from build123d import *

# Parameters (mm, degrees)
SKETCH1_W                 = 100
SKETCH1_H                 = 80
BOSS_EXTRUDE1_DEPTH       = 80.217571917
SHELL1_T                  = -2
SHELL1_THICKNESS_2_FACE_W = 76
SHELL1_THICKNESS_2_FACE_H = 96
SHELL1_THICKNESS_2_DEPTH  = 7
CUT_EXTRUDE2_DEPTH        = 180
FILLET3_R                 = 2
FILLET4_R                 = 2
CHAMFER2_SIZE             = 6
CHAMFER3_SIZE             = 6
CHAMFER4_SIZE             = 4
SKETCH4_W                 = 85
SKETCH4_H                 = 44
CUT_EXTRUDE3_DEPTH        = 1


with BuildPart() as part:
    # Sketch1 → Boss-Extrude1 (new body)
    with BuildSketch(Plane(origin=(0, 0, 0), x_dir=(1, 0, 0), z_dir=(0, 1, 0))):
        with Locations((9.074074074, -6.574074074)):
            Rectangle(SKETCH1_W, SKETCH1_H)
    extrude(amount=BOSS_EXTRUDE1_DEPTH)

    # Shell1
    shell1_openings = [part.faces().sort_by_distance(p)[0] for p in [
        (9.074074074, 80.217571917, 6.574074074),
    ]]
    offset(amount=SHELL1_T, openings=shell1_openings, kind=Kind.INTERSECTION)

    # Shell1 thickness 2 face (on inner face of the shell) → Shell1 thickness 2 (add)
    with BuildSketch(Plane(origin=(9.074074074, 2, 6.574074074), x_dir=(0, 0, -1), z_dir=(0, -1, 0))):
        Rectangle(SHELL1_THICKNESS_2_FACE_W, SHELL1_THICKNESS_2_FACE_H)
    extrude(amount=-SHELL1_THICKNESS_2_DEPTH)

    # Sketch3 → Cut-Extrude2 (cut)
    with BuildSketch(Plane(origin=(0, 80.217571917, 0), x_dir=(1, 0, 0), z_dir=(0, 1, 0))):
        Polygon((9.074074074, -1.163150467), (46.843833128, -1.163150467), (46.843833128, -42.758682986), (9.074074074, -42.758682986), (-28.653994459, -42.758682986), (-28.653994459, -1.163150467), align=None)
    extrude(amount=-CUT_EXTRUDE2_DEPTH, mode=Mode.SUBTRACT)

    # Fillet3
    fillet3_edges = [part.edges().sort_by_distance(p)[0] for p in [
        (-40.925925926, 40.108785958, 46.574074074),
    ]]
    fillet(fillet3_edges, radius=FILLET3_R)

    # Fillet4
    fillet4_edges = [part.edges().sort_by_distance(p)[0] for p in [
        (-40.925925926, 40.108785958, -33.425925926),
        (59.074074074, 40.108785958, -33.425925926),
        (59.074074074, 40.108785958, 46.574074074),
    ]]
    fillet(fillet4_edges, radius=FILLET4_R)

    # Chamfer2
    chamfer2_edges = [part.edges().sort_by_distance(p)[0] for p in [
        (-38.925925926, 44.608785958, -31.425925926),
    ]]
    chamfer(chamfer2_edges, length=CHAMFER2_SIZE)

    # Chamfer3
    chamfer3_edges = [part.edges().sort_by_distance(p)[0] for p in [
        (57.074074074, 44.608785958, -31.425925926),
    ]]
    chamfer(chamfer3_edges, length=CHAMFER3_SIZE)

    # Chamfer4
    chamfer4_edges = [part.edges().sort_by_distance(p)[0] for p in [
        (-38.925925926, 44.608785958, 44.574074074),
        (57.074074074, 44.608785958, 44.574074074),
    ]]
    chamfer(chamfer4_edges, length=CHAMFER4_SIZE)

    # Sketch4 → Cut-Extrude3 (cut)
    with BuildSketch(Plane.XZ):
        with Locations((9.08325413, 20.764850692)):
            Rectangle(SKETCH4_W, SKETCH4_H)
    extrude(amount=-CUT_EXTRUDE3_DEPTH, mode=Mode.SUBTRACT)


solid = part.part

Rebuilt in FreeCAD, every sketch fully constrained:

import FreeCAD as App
import Part
import Sketcher

V = App.Vector
Q = App.Units.Quantity


def edges_at(feature, points):
    """Names of the edges that pass closest to the given points."""
    edges = feature.Shape.Edges
    near = lambda p: min(range(len(edges)), key=lambda i: edges[i].distToShape(Part.Vertex(*p))[0])
    return sorted({f"Edge{near(p) + 1}" for p in points})


def faces_at(feature, points):
    """Names of the faces that lie closest to the given points."""
    faces = feature.Shape.Faces
    near = lambda p: min(range(len(faces)), key=lambda i: faces[i].distToShape(Part.Vertex(*p))[0])
    return sorted({f"Face{near(p) + 1}" for p in points})

doc = App.newDocument("Part")
body = doc.addObject("PartDesign::Body", "Body")

# Sketch on XZ plane
sketch1 = doc.addObject("Sketcher::SketchObject", "Sketch")
body.addObject(sketch1)
sketch1.AttachmentSupport = (doc.XZ_Plane, [""])
sketch1.MapMode = "FlatFace"
sketch1.addGeometry(Part.LineSegment(V(-41, -33, 0), V(-41, 47, 0)), False)
sketch1.addGeometry(Part.LineSegment(V(-41, 47, 0), V(59, 47, 0)), False)
sketch1.addGeometry(Part.LineSegment(V(59, 47, 0), V(59, -33, 0)), False)
sketch1.addGeometry(Part.LineSegment(V(59, -33, 0), V(-41, -33, 0)), False)
sketch1.addConstraint(Sketcher.Constraint("Coincident", 0, 2, 1, 1))
sketch1.addConstraint(Sketcher.Constraint("Coincident", 1, 2, 2, 1))
sketch1.addConstraint(Sketcher.Constraint("Coincident", 2, 2, 3, 1))
sketch1.addConstraint(Sketcher.Constraint("Coincident", 3, 2, 0, 1))
sketch1.addConstraint(Sketcher.Constraint("Vertical", 0))
sketch1.addConstraint(Sketcher.Constraint("Horizontal", 1))
sketch1.addConstraint(Sketcher.Constraint("Vertical", 2))
sketch1.addConstraint(Sketcher.Constraint("Horizontal", 3))
sketch1.addConstraint(Sketcher.Constraint("DistanceX", 1, 1, 1, 2, Q("100 mm")))
sketch1.addConstraint(Sketcher.Constraint("DistanceY", 0, 1, 0, 2, Q("80 mm")))
sketch1.addConstraint(Sketcher.Constraint("DistanceX", 0, 2, -1, 1, Q("40.925926 mm")))
sketch1.addConstraint(Sketcher.Constraint("DistanceY", -1, 1, 0, 2, Q("46.574074 mm")))
pad1 = doc.addObject("PartDesign::Pad", "Pad")
body.addObject(pad1)
pad1.Profile = sketch1
pad1.Length = 80.217572
pad1.Reversed = True
doc.recompute()

thickness = doc.addObject("PartDesign::Thickness", "Thickness")
body.addObject(thickness)
thickness.Base = (pad1, faces_at(pad1, [(9.074, 80.218, 6.574)]))
thickness.Value = 2
thickness.Reversed = True
thickness.Join = "Intersection"

# Sketch on XZ plane
sketch2 = doc.addObject("Sketcher::SketchObject", "Sketch001")
body.addObject(sketch2)
sketch2.AttachmentSupport = (doc.XZ_Plane, [""])
sketch2.MapMode = "FlatFace"
sketch2.AttachmentOffset = App.Placement(V(0, 0, -2), App.Rotation())
sketch2.addGeometry(Part.LineSegment(V(57, 45, 0), V(-39, 45, 0)), False)
sketch2.addGeometry(Part.LineSegment(V(-39, 45, 0), V(-39, -31, 0)), False)
sketch2.addGeometry(Part.LineSegment(V(-39, -31, 0), V(57, -31, 0)), False)
sketch2.addGeometry(Part.LineSegment(V(57, -31, 0), V(57, 45, 0)), False)
sketch2.addConstraint(Sketcher.Constraint("Coincident", 0, 2, 1, 1))
sketch2.addConstraint(Sketcher.Constraint("Coincident", 1, 2, 2, 1))
sketch2.addConstraint(Sketcher.Constraint("Coincident", 2, 2, 3, 1))
sketch2.addConstraint(Sketcher.Constraint("Coincident", 3, 2, 0, 1))
sketch2.addConstraint(Sketcher.Constraint("Horizontal", 0))
sketch2.addConstraint(Sketcher.Constraint("Vertical", 1))
sketch2.addConstraint(Sketcher.Constraint("Horizontal", 2))
sketch2.addConstraint(Sketcher.Constraint("Vertical", 3))
sketch2.addConstraint(Sketcher.Constraint("DistanceX", 0, 2, 0, 1, Q("96 mm")))
sketch2.addConstraint(Sketcher.Constraint("DistanceY", 1, 2, 1, 1, Q("76 mm")))
sketch2.addConstraint(Sketcher.Constraint("DistanceX", 0, 2, -1, 1, Q("38.925926 mm")))
sketch2.addConstraint(Sketcher.Constraint("DistanceY", -1, 1, 0, 2, Q("44.574074 mm")))
pad2 = doc.addObject("PartDesign::Pad", "Pad001")
body.addObject(pad2)
pad2.Profile = sketch2
pad2.Length = 7
pad2.Reversed = True

# Sketch on XZ plane
sketch3 = doc.addObject("Sketcher::SketchObject", "Sketch002")
body.addObject(sketch3)
sketch3.AttachmentSupport = (doc.XZ_Plane, [""])
sketch3.MapMode = "FlatFace"
sketch3.AttachmentOffset = App.Placement(V(0, 0, -80.217572), App.Rotation())
sketch3.addGeometry(Part.LineSegment(V(47, 1, 0), V(-29, 1, 0)), False)
sketch3.addGeometry(Part.LineSegment(V(-29, 1, 0), V(-29, 43, 0)), False)
sketch3.addGeometry(Part.LineSegment(V(-29, 43, 0), V(47, 43, 0)), False)
sketch3.addGeometry(Part.LineSegment(V(47, 43, 0), V(47, 1, 0)), False)
sketch3.addConstraint(Sketcher.Constraint("Coincident", 0, 2, 1, 1))
sketch3.addConstraint(Sketcher.Constraint("Coincident", 1, 2, 2, 1))
sketch3.addConstraint(Sketcher.Constraint("Coincident", 2, 2, 3, 1))
sketch3.addConstraint(Sketcher.Constraint("Coincident", 3, 2, 0, 1))
sketch3.addConstraint(Sketcher.Constraint("Horizontal", 0))
sketch3.addConstraint(Sketcher.Constraint("Vertical", 1))
sketch3.addConstraint(Sketcher.Constraint("Horizontal", 2))
sketch3.addConstraint(Sketcher.Constraint("Vertical", 3))
sketch3.addConstraint(Sketcher.Constraint("DistanceX", 0, 2, 0, 1, Q("75.497828 mm")))
sketch3.addConstraint(Sketcher.Constraint("DistanceY", 1, 1, 1, 2, Q("41.595533 mm")))
sketch3.addConstraint(Sketcher.Constraint("DistanceY", -1, 1, 0, 2, Q("1.16315 mm")))
sketch3.addConstraint(Sketcher.Constraint("DistanceX", 0, 2, -1, 1, Q("28.653994 mm")))
pocket1 = doc.addObject("PartDesign::Pocket", "Pocket")
body.addObject(pocket1)
pocket1.Profile = sketch3
pocket1.Length = 180
pocket1.Reversed = True
doc.recompute()

fillet = doc.addObject("PartDesign::Fillet", "Fillet")
body.addObject(fillet)
fillet.Base = (pocket1, edges_at(pocket1, [(-40.926, 40.109, 46.574)]))
fillet.Radius = 2
doc.recompute()

fillet2 = doc.addObject("PartDesign::Fillet", "Fillet001")
body.addObject(fillet2)
fillet2.Base = (fillet, edges_at(fillet, [(-40.926, 40.109, -33.426), (59.074, 40.109, -33.426), (59.074, 40.109, 46.574)]))
fillet2.Radius = 2
doc.recompute()

chamfer = doc.addObject("PartDesign::Chamfer", "Chamfer")
body.addObject(chamfer)
chamfer.Base = (fillet2, edges_at(fillet2, [(-38.926, 44.609, -31.426)]))
chamfer.Size = 6
doc.recompute()

chamfer2 = doc.addObject("PartDesign::Chamfer", "Chamfer001")
body.addObject(chamfer2)
chamfer2.Base = (chamfer, edges_at(chamfer, [(57.074, 44.609, -31.426)]))
chamfer2.Size = 6
doc.recompute()

chamfer3 = doc.addObject("PartDesign::Chamfer", "Chamfer002")
body.addObject(chamfer3)
chamfer3.Base = (chamfer2, edges_at(chamfer2, [(-38.926, 44.609, 44.574), (57.074, 44.609, 44.574)]))
chamfer3.Size = 4

# Sketch on XZ plane
sketch4 = doc.addObject("Sketcher::SketchObject", "Sketch003")
body.addObject(sketch4)
sketch4.AttachmentSupport = (doc.XZ_Plane, [""])
sketch4.MapMode = "FlatFace"
sketch4.addGeometry(Part.LineSegment(V(-33, 43, 0), V(-33, -1, 0)), False)
sketch4.addGeometry(Part.LineSegment(V(-33, -1, 0), V(52, -1, 0)), False)
sketch4.addGeometry(Part.LineSegment(V(52, -1, 0), V(52, 43, 0)), False)
sketch4.addGeometry(Part.LineSegment(V(52, 43, 0), V(-33, 43, 0)), False)
sketch4.addConstraint(Sketcher.Constraint("Coincident", 0, 2, 1, 1))
sketch4.addConstraint(Sketcher.Constraint("Coincident", 1, 2, 2, 1))
sketch4.addConstraint(Sketcher.Constraint("Coincident", 2, 2, 3, 1))
sketch4.addConstraint(Sketcher.Constraint("Coincident", 3, 2, 0, 1))
sketch4.addConstraint(Sketcher.Constraint("Vertical", 0))
sketch4.addConstraint(Sketcher.Constraint("Horizontal", 1))
sketch4.addConstraint(Sketcher.Constraint("Vertical", 2))
sketch4.addConstraint(Sketcher.Constraint("Horizontal", 3))
sketch4.addConstraint(Sketcher.Constraint("DistanceX", 1, 1, 1, 2, Q("85 mm")))
sketch4.addConstraint(Sketcher.Constraint("DistanceY", 0, 2, 0, 1, Q("44 mm")))
sketch4.addConstraint(Sketcher.Constraint("DistanceY", 0, 2, -1, 1, Q("1.235149 mm")))
sketch4.addConstraint(Sketcher.Constraint("DistanceX", 0, 2, -1, 1, Q("33.416746 mm")))
pocket2 = doc.addObject("PartDesign::Pocket", "Pocket001")
body.addObject(pocket2)
pocket2.Profile = sketch4
pocket2.Length = 1

doc.recompute()
